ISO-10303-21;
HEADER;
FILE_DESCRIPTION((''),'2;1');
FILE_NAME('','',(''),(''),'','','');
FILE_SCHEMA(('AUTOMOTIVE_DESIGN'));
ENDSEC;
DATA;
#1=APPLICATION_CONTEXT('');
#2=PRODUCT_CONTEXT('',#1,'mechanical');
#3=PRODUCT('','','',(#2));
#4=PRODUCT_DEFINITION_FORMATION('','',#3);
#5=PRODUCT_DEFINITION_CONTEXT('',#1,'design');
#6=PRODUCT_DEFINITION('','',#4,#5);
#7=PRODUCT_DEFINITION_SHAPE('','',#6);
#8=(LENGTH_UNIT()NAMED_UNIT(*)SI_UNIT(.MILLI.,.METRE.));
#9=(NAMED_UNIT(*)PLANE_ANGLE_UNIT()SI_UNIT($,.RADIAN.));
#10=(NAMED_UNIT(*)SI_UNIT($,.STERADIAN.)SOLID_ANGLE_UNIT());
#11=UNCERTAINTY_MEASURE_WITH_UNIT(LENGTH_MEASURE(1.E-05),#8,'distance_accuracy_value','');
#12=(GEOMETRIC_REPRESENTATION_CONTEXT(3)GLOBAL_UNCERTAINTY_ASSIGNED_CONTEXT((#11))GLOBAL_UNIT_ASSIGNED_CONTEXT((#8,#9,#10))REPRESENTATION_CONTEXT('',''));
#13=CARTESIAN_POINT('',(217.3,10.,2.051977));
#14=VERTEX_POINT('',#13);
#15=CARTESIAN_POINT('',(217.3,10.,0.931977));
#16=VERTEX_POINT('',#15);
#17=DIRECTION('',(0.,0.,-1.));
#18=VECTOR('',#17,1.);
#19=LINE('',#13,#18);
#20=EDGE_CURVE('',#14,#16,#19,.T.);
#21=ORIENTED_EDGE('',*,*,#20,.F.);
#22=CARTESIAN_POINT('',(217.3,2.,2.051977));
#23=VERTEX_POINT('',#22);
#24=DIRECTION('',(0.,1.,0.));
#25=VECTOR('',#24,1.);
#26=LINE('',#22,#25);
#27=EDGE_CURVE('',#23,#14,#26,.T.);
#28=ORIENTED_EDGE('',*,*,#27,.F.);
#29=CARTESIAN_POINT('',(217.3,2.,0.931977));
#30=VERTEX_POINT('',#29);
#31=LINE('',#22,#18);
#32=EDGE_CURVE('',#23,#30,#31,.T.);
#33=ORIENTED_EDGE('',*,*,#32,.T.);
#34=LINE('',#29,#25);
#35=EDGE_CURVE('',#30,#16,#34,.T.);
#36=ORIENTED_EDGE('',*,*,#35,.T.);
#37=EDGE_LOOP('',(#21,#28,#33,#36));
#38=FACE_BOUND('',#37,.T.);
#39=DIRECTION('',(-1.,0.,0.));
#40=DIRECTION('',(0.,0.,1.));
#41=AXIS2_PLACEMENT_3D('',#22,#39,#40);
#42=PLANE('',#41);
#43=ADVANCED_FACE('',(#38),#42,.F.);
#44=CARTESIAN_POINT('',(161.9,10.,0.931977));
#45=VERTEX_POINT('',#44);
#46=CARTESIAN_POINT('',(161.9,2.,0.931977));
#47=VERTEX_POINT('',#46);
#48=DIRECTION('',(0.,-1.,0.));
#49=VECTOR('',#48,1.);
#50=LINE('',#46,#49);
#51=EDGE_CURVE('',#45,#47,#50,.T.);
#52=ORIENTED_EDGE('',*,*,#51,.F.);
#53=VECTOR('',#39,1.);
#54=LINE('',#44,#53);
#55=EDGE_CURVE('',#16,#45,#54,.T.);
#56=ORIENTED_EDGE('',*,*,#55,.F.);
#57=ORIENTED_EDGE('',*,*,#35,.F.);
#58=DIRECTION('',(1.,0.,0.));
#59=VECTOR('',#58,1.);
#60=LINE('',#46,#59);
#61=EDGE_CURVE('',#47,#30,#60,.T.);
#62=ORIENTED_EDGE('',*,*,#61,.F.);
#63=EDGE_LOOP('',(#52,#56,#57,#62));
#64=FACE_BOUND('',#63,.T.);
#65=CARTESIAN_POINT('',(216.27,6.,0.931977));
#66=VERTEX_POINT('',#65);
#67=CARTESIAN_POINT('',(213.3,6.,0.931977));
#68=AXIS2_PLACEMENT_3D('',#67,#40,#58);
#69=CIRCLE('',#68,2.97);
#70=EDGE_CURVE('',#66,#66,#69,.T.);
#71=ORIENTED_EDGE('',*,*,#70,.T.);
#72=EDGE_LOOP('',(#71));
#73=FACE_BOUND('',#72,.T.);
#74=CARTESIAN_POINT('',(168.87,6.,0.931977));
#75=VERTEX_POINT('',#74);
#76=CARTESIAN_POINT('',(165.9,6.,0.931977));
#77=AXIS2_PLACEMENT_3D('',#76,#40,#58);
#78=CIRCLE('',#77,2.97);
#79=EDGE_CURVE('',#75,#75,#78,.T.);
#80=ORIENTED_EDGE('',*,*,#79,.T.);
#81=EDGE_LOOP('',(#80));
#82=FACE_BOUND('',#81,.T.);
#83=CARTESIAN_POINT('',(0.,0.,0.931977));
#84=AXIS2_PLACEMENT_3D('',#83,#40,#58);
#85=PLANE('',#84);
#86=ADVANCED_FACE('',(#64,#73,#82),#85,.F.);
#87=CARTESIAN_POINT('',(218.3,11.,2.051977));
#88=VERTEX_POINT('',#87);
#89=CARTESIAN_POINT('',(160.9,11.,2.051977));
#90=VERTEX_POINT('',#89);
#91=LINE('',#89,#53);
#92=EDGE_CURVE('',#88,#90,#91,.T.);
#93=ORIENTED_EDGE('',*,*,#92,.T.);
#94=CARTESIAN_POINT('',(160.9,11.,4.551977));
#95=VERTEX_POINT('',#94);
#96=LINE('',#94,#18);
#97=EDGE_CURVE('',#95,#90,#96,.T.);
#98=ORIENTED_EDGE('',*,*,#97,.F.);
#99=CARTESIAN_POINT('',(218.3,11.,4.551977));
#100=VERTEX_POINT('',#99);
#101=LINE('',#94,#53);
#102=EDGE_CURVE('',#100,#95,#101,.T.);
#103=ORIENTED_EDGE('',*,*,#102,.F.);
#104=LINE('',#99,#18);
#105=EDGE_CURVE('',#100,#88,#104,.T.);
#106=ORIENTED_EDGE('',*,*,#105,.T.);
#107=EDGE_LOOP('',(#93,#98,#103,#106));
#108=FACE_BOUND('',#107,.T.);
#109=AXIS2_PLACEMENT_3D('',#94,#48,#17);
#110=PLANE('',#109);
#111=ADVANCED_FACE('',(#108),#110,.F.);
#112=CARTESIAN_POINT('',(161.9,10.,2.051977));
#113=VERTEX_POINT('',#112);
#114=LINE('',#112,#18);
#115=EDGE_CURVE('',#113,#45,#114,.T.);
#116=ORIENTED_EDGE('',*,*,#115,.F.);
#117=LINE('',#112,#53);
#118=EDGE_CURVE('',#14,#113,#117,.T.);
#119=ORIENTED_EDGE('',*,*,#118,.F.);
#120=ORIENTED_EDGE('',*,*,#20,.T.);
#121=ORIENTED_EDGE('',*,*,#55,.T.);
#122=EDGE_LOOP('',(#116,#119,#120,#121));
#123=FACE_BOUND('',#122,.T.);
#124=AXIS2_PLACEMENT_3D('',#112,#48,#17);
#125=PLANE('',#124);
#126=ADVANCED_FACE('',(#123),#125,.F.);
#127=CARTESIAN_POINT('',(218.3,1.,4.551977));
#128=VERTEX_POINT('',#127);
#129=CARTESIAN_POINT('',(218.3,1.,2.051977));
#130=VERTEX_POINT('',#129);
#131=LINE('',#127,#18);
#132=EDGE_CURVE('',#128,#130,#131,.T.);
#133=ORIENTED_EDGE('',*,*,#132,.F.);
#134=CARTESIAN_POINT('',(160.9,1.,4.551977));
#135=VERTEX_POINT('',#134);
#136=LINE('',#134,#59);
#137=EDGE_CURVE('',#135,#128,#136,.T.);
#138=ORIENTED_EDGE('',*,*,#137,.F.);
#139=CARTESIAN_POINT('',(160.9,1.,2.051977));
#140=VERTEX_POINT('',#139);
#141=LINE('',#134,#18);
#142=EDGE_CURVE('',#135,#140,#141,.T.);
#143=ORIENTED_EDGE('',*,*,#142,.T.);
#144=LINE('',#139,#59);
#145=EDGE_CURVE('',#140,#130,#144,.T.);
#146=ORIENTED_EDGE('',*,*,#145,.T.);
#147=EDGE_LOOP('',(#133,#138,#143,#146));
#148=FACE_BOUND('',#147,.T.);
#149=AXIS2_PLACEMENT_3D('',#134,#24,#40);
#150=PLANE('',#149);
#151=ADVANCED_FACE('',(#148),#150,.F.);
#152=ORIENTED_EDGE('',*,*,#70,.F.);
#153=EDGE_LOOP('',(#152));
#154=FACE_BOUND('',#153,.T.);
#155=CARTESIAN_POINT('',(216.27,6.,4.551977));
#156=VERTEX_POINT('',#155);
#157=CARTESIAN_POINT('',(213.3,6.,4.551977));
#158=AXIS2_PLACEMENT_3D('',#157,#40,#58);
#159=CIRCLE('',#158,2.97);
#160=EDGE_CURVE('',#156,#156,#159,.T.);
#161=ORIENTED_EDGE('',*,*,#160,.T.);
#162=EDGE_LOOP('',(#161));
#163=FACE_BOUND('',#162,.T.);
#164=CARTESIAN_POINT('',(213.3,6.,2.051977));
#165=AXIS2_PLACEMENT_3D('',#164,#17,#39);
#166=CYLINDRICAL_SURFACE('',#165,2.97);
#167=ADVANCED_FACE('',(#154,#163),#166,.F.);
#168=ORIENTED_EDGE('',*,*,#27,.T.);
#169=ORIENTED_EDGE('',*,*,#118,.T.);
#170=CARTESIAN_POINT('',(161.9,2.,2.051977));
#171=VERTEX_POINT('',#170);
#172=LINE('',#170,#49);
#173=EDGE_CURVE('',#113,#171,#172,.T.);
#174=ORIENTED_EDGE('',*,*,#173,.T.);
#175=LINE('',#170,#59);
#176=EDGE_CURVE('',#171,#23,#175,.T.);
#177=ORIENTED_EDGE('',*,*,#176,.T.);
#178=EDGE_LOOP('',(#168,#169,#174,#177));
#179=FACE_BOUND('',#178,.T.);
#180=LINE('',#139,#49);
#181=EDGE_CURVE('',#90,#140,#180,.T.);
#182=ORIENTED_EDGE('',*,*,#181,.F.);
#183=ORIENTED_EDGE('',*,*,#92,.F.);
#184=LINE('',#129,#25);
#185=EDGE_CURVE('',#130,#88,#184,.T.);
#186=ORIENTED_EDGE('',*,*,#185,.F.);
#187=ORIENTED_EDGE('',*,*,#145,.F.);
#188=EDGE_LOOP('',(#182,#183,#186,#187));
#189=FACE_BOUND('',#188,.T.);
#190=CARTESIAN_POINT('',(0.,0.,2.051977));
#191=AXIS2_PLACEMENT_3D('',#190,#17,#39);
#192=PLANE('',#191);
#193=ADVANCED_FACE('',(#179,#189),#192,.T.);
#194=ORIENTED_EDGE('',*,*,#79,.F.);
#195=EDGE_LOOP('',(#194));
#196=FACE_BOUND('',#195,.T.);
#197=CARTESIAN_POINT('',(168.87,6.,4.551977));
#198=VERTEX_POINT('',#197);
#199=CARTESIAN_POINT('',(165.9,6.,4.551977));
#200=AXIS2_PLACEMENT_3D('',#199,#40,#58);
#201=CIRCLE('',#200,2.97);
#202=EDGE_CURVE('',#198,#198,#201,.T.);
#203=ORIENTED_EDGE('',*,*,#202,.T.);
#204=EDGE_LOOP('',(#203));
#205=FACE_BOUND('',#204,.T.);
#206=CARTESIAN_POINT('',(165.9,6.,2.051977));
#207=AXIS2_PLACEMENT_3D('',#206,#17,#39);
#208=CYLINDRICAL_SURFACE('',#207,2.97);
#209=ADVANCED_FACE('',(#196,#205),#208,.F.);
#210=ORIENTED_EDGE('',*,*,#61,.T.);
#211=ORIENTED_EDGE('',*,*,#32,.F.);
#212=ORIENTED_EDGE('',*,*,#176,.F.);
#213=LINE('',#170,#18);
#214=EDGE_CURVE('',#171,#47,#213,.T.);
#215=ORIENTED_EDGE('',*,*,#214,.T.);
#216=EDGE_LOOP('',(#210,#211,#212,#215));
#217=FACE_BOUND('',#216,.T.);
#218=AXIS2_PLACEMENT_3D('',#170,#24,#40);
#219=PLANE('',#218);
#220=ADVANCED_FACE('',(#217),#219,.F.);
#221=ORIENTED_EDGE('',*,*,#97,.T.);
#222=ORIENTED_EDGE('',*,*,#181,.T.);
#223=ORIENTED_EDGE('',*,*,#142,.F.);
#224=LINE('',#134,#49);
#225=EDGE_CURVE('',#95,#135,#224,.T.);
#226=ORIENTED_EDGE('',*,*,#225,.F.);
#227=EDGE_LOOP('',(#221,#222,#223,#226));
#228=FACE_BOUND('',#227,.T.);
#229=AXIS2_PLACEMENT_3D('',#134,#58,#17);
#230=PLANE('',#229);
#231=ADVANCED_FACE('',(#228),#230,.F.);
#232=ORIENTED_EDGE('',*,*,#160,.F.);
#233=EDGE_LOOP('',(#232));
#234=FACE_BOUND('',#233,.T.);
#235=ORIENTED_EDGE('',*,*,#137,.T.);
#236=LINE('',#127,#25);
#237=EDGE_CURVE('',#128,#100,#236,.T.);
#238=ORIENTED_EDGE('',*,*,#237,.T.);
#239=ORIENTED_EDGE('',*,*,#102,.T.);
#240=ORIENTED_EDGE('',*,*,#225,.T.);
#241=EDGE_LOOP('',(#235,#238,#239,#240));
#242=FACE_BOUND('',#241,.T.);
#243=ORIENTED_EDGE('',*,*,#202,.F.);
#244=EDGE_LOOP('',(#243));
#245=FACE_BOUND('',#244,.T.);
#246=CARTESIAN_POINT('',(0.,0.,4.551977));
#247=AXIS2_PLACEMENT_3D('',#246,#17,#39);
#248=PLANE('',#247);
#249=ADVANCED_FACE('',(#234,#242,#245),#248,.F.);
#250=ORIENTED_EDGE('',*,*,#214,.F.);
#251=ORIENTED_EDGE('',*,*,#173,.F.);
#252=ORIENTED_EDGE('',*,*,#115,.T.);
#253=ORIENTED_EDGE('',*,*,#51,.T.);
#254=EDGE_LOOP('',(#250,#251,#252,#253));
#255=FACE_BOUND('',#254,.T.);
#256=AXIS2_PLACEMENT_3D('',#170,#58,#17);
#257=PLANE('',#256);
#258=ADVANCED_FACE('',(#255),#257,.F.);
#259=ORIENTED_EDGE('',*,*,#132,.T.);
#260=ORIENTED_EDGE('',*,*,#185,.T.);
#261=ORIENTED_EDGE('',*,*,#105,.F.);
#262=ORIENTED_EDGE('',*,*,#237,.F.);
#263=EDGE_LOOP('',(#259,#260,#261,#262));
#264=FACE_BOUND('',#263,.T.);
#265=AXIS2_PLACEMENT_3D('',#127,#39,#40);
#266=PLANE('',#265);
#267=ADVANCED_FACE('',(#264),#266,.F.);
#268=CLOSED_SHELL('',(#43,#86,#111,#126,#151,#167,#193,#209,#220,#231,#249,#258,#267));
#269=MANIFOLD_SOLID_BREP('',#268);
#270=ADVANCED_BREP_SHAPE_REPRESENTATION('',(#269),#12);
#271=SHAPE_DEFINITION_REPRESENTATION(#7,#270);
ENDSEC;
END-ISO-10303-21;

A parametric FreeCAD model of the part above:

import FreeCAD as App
import Part
import Sketcher
from FreeCAD import Vector


def add_polygon(sketch, points):
    """Adds a closed chain of lines whose ends are joined by coincident constraints."""
    first, n = sketch.GeometryCount, len(points)
    for a, b in zip(points, points[1:] + points[:1]):
        sketch.addGeometry(Part.LineSegment(App.Vector(*a, 0), App.Vector(*b, 0)), False)
    for i in range(n):
        sketch.addConstraint(Sketcher.Constraint("Coincident", first + i, 2, first + (i + 1) % n, 1))

doc = App.newDocument("Part")
params = doc.addObject("Spreadsheet::Sheet", "Params")
for row, (alias, value) in enumerate([
    ("sketch1_diameter", "5.94 mm"),
    ("sketch1_height", "8 mm"),
    ("sketch1_width", "55.4 mm"),
    ("pad1_length", "1.12 mm"),
    ("sketch2_diameter", "5.94 mm"),
    ("sketch2_height", "10 mm"),
    ("sketch2_width", "57.4 mm"),
    ("pad2_length", "2.5 mm"),
], start=1):
    params.set(f"A{row}", alias)
    params.set(f"B{row}", "=" + value)
    params.setAlias(f"B{row}", alias)

body = doc.addObject("PartDesign::Body", "Body")

sketch1 = doc.addObject("Sketcher::SketchObject", "Sketch")
body.addObject(sketch1)
sketch1.AttachmentSupport = (doc.XY_Plane, [""])
sketch1.MapMode = "FlatFace"
sketch1.AttachmentOffset = App.Placement(Vector(0, 0, 0.931977), App.Rotation())
add_polygon(sketch1, [(161.9, 10), (161.9, 2), (217.3, 2), (217.3, 10)])
sketch1.addGeometry(Part.Circle(Vector(165.9, 6, 0), Vector(0, 0, 1), 3), False)
sketch1.addGeometry(Part.Circle(Vector(213.3, 6, 0), Vector(0, 0, 1), 3), False)
sketch1.addConstraint(Sketcher.Constraint("Vertical", 0))
sketch1.addConstraint(Sketcher.Constraint("Horizontal", 1))
sketch1.addConstraint(Sketcher.Constraint("Vertical", 2))
sketch1.addConstraint(Sketcher.Constraint("Horizontal", 3))
sketch1.addConstraint(Sketcher.Constraint("Equal", 4, 5))
sketch1.addConstraint(Sketcher.Constraint("Horizontal", 4, 3, 5, 3))
sketch1.addConstraint(Sketcher.Constraint("Diameter", 4, 5.94))
sketch1.addConstraint(Sketcher.Constraint("DistanceY", 0, 2, 0, 1, 8.0))
sketch1.addConstraint(Sketcher.Constraint("DistanceX", 1, 1, 1, 2, 55.4))
sketch1.addConstraint(Sketcher.Constraint("DistanceY", -1, 1, 4, 3, 6.0))
sketch1.addConstraint(Sketcher.Constraint("DistanceY", -1, 1, 0, 2, 2.0))
sketch1.addConstraint(Sketcher.Constraint("DistanceX", 0, 2, 4, 3, 4.0))
sketch1.addConstraint(Sketcher.Constraint("DistanceX", 5, 3, 1, 2, 4.0))
sketch1.addConstraint(Sketcher.Constraint("DistanceX", -1, 1, 4, 3, 165.9))
sketch1.setExpression("Constraints[10]", "Params.sketch1_diameter")
sketch1.setExpression("Constraints[11]", "Params.sketch1_height")
sketch1.setExpression("Constraints[12]", "Params.sketch1_width")
pad1 = doc.addObject("PartDesign::Pad", "Pad")
body.addObject(pad1)
pad1.Profile = sketch1
pad1.setExpression("Length", "Params.pad1_length")

sketch2 = doc.addObject("Sketcher::SketchObject", "Sketch001")
body.addObject(sketch2)
sketch2.AttachmentSupport = (doc.XY_Plane, [""])
sketch2.MapMode = "FlatFace"
sketch2.AttachmentOffset = App.Placement(Vector(0, 0, 2.051977), App.Rotation())
add_polygon(sketch2, [(160.9, 11), (160.9, 1), (218.3, 1), (218.3, 11)])
sketch2.addGeometry(Part.Circle(Vector(165.9, 6, 0), Vector(0, 0, 1), 3), False)
sketch2.addGeometry(Part.Circle(Vector(213.3, 6, 0), Vector(0, 0, 1), 3), False)
sketch2.addConstraint(Sketcher.Constraint("Vertical", 0))
sketch2.addConstraint(Sketcher.Constraint("Horizontal", 1))
sketch2.addConstraint(Sketcher.Constraint("Vertical", 2))
sketch2.addConstraint(Sketcher.Constraint("Horizontal", 3))
sketch2.addConstraint(Sketcher.Constraint("Equal", 4, 5))
sketch2.addConstraint(Sketcher.Constraint("Horizontal", 4, 3, 5, 3))
sketch2.addConstraint(Sketcher.Constraint("Diameter", 4, 5.94))
sketch2.addConstraint(Sketcher.Constraint("DistanceY", 0, 2, 0, 1, 10.0))
sketch2.addConstraint(Sketcher.Constraint("DistanceX", 1, 1, 1, 2, 57.4))
sketch2.addConstraint(Sketcher.Constraint("DistanceY", -1, 1, 4, 3, 6.0))
sketch2.addConstraint(Sketcher.Constraint("DistanceY", -1, 1, 0, 2, 1.0))
sketch2.addConstraint(Sketcher.Constraint("DistanceX", 0, 2, 4, 3, 5.0))
sketch2.addConstraint(Sketcher.Constraint("DistanceX", 5, 3, 1, 2, 5.0))
sketch2.addConstraint(Sketcher.Constraint("DistanceX", -1, 1, 4, 3, 165.9))
sketch2.setExpression("Constraints[10]", "Params.sketch2_diameter")
sketch2.setExpression("Constraints[11]", "Params.sketch2_height")
sketch2.setExpression("Constraints[12]", "Params.sketch2_width")
pad2 = doc.addObject("PartDesign::Pad", "Pad001")
body.addObject(pad2)
pad2.Profile = sketch2
pad2.setExpression("Length", "Params.pad2_length")

doc.recompute()
